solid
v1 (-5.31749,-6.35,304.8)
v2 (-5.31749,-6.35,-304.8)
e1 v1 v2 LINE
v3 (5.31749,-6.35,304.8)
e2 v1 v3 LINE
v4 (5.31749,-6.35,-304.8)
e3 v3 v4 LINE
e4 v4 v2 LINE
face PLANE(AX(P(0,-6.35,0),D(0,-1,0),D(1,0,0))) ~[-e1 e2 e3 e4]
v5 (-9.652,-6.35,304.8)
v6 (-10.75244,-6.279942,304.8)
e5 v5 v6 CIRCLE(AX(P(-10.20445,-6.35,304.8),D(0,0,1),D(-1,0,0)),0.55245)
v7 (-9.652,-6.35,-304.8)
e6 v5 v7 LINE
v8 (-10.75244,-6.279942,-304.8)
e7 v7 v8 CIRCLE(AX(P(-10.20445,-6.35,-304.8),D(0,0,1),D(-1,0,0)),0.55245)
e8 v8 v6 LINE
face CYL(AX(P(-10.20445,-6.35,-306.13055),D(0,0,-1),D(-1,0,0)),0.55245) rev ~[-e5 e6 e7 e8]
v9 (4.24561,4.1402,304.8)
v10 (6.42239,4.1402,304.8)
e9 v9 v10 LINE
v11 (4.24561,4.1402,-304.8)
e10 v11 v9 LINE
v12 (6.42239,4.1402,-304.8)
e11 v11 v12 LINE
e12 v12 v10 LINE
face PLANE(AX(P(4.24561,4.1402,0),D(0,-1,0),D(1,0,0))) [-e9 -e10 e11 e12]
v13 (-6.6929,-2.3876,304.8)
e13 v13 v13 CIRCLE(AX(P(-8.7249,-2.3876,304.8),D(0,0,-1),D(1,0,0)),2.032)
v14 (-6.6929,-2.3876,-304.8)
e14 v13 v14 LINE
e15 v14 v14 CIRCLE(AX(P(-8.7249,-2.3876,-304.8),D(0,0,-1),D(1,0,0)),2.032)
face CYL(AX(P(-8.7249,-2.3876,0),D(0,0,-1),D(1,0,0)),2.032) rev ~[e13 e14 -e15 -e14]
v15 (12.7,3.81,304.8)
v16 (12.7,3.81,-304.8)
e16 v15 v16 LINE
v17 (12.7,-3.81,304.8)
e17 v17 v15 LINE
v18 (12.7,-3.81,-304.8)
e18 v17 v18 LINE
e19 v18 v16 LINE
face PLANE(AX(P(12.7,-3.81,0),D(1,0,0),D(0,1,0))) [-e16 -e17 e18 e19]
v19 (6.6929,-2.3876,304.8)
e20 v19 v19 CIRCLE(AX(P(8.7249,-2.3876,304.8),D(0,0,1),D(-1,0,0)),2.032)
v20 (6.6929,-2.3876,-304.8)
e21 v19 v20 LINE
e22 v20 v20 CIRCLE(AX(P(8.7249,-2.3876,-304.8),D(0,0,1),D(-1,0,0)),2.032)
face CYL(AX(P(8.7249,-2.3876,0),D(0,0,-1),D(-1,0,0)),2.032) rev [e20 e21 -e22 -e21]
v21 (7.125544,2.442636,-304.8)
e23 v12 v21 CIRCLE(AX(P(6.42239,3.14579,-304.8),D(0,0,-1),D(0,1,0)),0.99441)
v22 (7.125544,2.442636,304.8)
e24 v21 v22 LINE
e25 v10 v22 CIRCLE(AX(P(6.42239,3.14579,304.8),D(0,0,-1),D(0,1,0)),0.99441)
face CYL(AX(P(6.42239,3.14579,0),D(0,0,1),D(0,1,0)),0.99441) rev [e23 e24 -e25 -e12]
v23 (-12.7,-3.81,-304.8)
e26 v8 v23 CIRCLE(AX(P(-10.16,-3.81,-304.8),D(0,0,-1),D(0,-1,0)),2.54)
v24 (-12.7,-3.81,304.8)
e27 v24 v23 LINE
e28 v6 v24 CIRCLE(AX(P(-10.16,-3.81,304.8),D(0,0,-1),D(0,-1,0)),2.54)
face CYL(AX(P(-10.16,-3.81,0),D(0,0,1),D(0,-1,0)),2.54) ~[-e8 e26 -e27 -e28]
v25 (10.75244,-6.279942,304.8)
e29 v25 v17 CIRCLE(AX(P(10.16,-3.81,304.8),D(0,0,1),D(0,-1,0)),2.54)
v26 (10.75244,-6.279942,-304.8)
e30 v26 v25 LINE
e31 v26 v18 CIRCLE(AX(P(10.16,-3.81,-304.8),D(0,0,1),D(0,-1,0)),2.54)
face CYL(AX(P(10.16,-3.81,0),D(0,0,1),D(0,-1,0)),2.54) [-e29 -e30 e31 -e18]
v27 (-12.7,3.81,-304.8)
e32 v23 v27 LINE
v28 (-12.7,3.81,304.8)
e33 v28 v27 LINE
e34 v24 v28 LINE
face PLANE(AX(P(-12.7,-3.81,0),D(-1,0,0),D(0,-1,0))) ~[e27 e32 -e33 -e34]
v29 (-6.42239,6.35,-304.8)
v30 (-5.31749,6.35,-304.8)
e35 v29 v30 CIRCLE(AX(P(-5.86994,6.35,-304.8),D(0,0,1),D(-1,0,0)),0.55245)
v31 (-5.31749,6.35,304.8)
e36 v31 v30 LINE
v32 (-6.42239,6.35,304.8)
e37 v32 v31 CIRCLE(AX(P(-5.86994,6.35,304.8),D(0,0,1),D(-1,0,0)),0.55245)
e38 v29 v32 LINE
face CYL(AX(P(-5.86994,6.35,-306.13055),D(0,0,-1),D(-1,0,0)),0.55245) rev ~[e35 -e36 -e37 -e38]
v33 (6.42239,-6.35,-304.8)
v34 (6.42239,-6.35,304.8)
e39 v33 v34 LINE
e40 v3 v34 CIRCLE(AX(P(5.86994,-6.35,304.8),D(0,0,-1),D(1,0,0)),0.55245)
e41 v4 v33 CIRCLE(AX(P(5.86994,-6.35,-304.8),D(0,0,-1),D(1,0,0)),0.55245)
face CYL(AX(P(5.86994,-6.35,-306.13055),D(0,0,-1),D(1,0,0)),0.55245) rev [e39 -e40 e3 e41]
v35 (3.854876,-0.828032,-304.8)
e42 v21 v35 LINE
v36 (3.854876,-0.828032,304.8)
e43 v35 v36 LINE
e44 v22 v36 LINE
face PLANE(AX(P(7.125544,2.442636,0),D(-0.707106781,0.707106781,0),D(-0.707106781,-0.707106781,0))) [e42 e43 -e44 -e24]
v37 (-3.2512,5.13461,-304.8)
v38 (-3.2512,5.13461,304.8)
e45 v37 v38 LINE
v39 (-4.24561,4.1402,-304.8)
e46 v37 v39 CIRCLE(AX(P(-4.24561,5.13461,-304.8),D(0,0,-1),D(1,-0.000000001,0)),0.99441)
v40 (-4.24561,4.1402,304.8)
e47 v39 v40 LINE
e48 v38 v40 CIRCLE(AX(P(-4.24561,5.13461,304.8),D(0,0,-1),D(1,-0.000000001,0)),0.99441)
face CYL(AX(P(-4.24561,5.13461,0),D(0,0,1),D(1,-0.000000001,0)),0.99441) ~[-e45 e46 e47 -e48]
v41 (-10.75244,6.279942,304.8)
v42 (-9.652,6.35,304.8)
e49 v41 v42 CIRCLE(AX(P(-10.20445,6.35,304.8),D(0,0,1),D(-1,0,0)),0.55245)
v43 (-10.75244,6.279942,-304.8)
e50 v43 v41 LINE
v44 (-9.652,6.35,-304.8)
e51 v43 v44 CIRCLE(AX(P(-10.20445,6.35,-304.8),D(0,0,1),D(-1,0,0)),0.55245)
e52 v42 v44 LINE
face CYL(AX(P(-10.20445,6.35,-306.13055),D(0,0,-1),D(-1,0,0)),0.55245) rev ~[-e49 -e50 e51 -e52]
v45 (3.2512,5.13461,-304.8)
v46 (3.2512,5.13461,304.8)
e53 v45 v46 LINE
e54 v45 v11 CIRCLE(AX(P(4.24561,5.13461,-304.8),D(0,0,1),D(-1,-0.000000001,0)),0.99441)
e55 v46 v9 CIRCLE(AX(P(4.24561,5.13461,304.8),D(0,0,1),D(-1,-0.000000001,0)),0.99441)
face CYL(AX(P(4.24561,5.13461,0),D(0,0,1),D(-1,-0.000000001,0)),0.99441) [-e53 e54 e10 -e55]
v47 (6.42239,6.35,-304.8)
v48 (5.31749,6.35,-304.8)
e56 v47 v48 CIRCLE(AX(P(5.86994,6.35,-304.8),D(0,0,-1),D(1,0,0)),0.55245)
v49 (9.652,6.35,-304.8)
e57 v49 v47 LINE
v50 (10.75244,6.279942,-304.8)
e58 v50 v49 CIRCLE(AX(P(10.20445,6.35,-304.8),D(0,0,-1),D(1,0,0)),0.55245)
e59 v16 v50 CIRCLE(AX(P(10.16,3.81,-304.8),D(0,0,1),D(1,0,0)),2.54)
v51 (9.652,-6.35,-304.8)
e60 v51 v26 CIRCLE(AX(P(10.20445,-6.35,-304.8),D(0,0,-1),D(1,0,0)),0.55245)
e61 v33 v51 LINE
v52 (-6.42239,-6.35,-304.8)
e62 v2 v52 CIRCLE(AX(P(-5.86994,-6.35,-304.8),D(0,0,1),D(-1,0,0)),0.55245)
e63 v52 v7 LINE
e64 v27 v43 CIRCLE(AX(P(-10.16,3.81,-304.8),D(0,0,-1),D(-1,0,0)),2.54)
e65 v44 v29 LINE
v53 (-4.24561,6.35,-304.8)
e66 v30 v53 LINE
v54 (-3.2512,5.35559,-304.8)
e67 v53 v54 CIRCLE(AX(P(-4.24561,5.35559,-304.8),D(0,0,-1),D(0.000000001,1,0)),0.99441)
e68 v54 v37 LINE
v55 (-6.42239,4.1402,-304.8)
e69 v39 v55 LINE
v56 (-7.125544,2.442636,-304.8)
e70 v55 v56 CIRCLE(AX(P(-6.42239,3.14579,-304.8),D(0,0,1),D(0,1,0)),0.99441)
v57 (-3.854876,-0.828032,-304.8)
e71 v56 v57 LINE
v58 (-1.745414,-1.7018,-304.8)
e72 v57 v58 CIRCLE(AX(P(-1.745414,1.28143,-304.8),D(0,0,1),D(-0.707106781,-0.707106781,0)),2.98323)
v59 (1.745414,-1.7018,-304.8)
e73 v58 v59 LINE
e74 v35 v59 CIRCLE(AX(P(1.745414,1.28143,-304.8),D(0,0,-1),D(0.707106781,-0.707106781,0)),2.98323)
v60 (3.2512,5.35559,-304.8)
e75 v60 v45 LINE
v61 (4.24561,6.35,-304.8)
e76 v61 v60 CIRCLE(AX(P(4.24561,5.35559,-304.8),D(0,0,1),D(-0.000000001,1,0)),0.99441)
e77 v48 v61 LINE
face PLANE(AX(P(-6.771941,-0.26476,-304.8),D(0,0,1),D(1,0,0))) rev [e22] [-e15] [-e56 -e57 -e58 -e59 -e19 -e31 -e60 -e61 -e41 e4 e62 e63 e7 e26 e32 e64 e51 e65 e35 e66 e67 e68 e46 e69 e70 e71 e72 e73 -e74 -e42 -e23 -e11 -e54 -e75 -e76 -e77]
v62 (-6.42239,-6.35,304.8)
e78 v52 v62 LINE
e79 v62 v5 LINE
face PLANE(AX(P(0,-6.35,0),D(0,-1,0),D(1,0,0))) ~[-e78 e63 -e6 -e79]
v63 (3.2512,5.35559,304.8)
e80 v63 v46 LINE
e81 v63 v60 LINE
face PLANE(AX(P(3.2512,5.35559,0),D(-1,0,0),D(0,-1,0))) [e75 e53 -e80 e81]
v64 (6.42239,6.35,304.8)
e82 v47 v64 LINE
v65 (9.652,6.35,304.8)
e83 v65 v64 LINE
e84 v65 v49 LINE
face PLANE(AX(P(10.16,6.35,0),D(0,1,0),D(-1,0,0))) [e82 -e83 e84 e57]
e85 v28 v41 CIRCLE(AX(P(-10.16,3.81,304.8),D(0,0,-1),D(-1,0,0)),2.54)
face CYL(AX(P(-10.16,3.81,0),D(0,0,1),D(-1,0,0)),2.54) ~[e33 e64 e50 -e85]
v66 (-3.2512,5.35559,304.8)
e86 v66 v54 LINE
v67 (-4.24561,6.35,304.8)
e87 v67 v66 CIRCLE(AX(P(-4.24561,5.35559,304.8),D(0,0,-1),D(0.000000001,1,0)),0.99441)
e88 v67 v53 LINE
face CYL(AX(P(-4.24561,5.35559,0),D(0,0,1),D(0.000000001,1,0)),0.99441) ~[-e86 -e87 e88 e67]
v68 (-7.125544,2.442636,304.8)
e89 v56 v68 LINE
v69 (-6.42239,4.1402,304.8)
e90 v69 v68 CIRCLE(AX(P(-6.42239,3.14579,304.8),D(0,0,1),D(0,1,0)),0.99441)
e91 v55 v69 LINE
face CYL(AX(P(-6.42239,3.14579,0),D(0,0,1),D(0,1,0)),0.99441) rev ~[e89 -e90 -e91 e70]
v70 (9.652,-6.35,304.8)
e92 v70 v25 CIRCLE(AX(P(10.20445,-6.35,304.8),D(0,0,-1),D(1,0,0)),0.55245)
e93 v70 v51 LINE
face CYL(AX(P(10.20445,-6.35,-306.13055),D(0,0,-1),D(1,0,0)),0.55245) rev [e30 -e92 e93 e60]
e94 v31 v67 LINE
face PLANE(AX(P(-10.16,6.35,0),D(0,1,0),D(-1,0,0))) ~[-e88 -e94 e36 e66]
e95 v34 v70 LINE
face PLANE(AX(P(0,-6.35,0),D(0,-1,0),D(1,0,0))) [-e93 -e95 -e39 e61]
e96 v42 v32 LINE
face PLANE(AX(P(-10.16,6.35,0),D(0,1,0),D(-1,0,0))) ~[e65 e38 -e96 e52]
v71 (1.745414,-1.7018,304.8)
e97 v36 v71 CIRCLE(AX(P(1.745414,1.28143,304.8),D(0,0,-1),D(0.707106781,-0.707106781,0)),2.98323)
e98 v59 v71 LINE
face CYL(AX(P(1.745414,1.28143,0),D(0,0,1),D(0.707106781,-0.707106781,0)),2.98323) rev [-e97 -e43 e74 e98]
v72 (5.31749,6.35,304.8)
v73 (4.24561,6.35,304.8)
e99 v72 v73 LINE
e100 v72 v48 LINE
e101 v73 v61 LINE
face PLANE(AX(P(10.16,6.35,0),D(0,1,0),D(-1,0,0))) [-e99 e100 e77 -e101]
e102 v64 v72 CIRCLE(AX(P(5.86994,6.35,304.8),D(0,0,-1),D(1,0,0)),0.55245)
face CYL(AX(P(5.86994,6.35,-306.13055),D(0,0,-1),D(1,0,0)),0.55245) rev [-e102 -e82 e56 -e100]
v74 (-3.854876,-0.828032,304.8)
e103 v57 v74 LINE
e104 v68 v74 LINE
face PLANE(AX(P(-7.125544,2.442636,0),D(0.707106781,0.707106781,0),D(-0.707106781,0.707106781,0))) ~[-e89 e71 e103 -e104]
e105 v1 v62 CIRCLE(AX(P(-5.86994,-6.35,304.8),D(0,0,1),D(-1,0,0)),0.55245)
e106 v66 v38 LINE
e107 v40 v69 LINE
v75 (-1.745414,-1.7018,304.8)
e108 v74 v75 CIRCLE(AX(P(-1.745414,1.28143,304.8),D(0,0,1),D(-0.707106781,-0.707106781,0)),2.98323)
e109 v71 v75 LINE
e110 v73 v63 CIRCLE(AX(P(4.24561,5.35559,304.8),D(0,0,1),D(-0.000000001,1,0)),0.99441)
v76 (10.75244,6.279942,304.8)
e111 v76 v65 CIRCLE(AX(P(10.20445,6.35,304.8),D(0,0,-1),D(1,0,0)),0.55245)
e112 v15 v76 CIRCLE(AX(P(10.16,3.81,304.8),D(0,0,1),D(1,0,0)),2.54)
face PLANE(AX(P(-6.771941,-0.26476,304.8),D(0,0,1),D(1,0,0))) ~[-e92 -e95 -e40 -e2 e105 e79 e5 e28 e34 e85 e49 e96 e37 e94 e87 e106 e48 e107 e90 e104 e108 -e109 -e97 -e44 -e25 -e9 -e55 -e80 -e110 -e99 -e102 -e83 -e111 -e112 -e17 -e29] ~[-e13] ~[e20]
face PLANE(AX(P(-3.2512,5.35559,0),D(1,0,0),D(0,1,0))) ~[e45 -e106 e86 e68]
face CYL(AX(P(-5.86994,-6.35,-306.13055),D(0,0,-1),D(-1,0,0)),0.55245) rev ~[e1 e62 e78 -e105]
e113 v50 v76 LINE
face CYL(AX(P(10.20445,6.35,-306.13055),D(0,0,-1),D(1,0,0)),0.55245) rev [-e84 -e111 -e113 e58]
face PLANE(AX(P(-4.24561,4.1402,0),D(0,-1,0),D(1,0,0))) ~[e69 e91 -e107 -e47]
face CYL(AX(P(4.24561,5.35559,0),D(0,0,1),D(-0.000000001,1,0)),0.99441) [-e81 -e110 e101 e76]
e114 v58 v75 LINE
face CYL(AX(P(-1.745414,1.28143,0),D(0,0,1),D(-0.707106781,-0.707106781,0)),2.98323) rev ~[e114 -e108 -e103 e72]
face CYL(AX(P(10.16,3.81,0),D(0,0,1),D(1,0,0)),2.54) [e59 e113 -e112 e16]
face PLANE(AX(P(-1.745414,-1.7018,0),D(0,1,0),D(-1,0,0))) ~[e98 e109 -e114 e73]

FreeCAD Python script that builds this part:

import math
import FreeCAD as App
import Part
import Sketcher
from FreeCAD import Vector
Q = App.Units.Quantity

doc = App.newDocument("Part")
body = doc.addObject("PartDesign::Body", "Body")

sketch1 = doc.addObject("Sketcher::SketchObject", "Sketch")
body.addObject(sketch1)
sketch1.AttachmentSupport = (doc.XY_Plane, [""])
sketch1.MapMode = "FlatFace"
sketch1.addGeometry(Part.LineSegment(Vector(3.25, 5.36, 0), Vector(3.25, 5.13, 0)), False)
sketch1.addGeometry(Part.ArcOfCircle(Part.Circle(Vector(4.25, 5.13, 0), Vector(0, 0, 1), 0.99), math.radians(-180), math.radians(-90)), False)
sketch1.addGeometry(Part.LineSegment(Vector(4.25, 4.14, 0), Vector(6.42, 4.14, 0)), False)
sketch1.addGeometry(Part.ArcOfCircle(Part.Circle(Vector(6.42, 3.15, 0), Vector(0, 0, 1), 0.99), math.radians(-45), math.radians(90)), False)
sketch1.addGeometry(Part.LineSegment(Vector(7.13, 2.44, 0), Vector(3.85, -0.83, 0)), False)
sketch1.addGeometry(Part.ArcOfCircle(Part.Circle(Vector(1.75, 1.28, 0), Vector(0, 0, 1), 2.98), math.radians(-90), math.radians(-45)), False)
sketch1.addGeometry(Part.LineSegment(Vector(1.75, -1.7, 0), Vector(0, -1.7, 0)), False)
sketch1.addGeometry(Part.LineSegment(Vector(0, -1.7, 0), Vector(0, -6.35, 0)), False)
sketch1.addGeometry(Part.LineSegment(Vector(0, -6.35, 0), Vector(10.16, -6.35, 0)), False)
sketch1.addGeometry(Part.ArcOfCircle(Part.Circle(Vector(10.16, -3.81, 0), Vector(0, 0, 1), 2.54), math.radians(-90), math.radians(0)), False)
sketch1.addGeometry(Part.LineSegment(Vector(12.7, -3.81, 0), Vector(12.7, 3.81, 0)), False)
sketch1.addGeometry(Part.ArcOfCircle(Part.Circle(Vector(10.16, 3.81, 0), Vector(0, 0, 1), 2.54), math.radians(0), math.radians(90)), False)
sketch1.addGeometry(Part.LineSegment(Vector(10.16, 6.35, 0), Vector(4.25, 6.35, 0)), False)
sketch1.addGeometry(Part.ArcOfCircle(Part.Circle(Vector(4.25, 5.36, 0), Vector(0, 0, 1), 0.99), math.radians(90), math.radians(180)), False)
sketch1.addGeometry(Part.Circle(Vector(8.72, -2.39, 0), Vector(0, 0, 1), 2.03), False)
sketch1.addConstraint(Sketcher.Constraint("Tangent", 0, 2, 1, 1))
sketch1.addConstraint(Sketcher.Constraint("Tangent", 1, 2, 2, 1))
sketch1.addConstraint(Sketcher.Constraint("Tangent", 2, 2, 3, 2))
sketch1.addConstraint(Sketcher.Constraint("Tangent", 3, 1, 4, 1))
sketch1.addConstraint(Sketcher.Constraint("Tangent", 4, 2, 5, 2))
sketch1.addConstraint(Sketcher.Constraint("Tangent", 5, 1, 6, 1))
sketch1.addConstraint(Sketcher.Constraint("Coincident", 6, 2, 7, 1))
sketch1.addConstraint(Sketcher.Constraint("Coincident", 7, 2, 8, 1))
sketch1.addConstraint(Sketcher.Constraint("Tangent", 8, 2, 9, 1))
sketch1.addConstraint(Sketcher.Constraint("Tangent", 9, 2, 10, 1))
sketch1.addConstraint(Sketcher.Constraint("Tangent", 10, 2, 11, 1))
sketch1.addConstraint(Sketcher.Constraint("Tangent", 11, 2, 12, 1))
sketch1.addConstraint(Sketcher.Constraint("Tangent", 12, 2, 13, 1))
sketch1.addConstraint(Sketcher.Constraint("Tangent", 13, 2, 0, 1))
sketch1.addConstraint(Sketcher.Constraint("Vertical", 0))
sketch1.addConstraint(Sketcher.Constraint("Horizontal", 2))
sketch1.addConstraint(Sketcher.Constraint("Horizontal", 6))
sketch1.addConstraint(Sketcher.Constraint("Vertical", 7))
sketch1.addConstraint(Sketcher.Constraint("Horizontal", 8))
sketch1.addConstraint(Sketcher.Constraint("Vertical", 10))
sketch1.addConstraint(Sketcher.Constraint("Horizontal", 12))
sketch1.addConstraint(Sketcher.Constraint("Equal", 1, 3))
sketch1.addConstraint(Sketcher.Constraint("Equal", 9, 11))
sketch1.addConstraint(Sketcher.Constraint("Equal", 3, 13))
sketch1.addConstraint(Sketcher.Constraint("PointOnObject", 6, 2, -2))
sketch1.addConstraint(Sketcher.Constraint("Radius", 9, Q("0.1 in")))
sketch1.addConstraint(Sketcher.Constraint("Diameter", 14, Q("0.16 in")))
sketch1.addConstraint(Sketcher.Constraint("DistanceX", 8, 1, 8, 2, Q("0.4 in")))
sketch1.addConstraint(Sketcher.Constraint("DistanceY", 10, 1, 10, 2, Q("0.3 in")))
sketch1.addConstraint(Sketcher.Constraint("Angle", 4, Q("-135 deg")))
sketch1.addConstraint(Sketcher.Constraint("DistanceY", 7, 2, 7, 1, Q("0.183 in")))
sketch1.addConstraint(Sketcher.Constraint("DistanceY", 9, 3, -1, 1, Q("0.15 in")))
sketch1.addConstraint(Sketcher.Constraint("DistanceY", 5, 1, 1, 2, Q("0.23 in")))
sketch1.addConstraint(Sketcher.Constraint("DistanceX", 2, 1, 2, 2, Q("0.0857 in")))
sketch1.addConstraint(Sketcher.Constraint("DistanceY", 0, 2, 0, 1, Q("0.0087 in")))
sketch1.addConstraint(Sketcher.Constraint("DistanceY", 14, 3, -1, 1, Q("0.094 in")))
sketch1.addConstraint(Sketcher.Constraint("DistanceX", -1, 1, 0, 2, Q("0.128 in")))
sketch1.addConstraint(Sketcher.Constraint("Radius", 5, Q("2.98323 mm")))
sketch1.addConstraint(Sketcher.Constraint("DistanceX", -1, 1, 14, 3, Q("0.3435 in")))
pad1 = doc.addObject("PartDesign::Pad", "Pad")
body.addObject(pad1)
pad1.Profile = sketch1
pad1.Length = Q("24 in")
pad1.Midplane = True

sketch2 = doc.addObject("Sketcher::SketchObject", "Sketch001")
body.addObject(sketch2)
sketch2.AttachmentSupport = (doc.XY_Plane, [""])
sketch2.MapMode = "FlatFace"
sketch2.addGeometry(Part.Circle(Vector(5.9, 6.3, 0), Vector(0, 0, 1), 0.6), False)
sketch2.addGeometry(Part.Circle(Vector(10.2, 6.3, 0), Vector(0, 0, 1), 0.6), False)
sketch2.addGeometry(Part.Circle(Vector(5.9, -6.3, 0), Vector(0, 0, 1), 0.6), False)
sketch2.addGeometry(Part.Circle(Vector(10.2, -6.3, 0), Vector(0, 0, 1), 0.6), False)
sketch2.addConstraint(Sketcher.Constraint("Equal", 0, 1))
sketch2.addConstraint(Sketcher.Constraint("Equal", 1, 2))
sketch2.addConstraint(Sketcher.Constraint("Equal", 2, 3))
sketch2.addConstraint(Sketcher.Constraint("Symmetric", 0, 3, 2, 3, -1))
sketch2.addConstraint(Sketcher.Constraint("Symmetric", 1, 3, 3, 3, -1))
sketch2.addConstraint(Sketcher.Constraint("Horizontal", 0, 3, 1, 3))
sketch2.addConstraint(Sketcher.Constraint("Diameter", 0, Q("0.0435 in")))
sketch2.addConstraint(Sketcher.Constraint("DistanceY", 2, 3, 0, 3, Q("0.5 in")))
sketch2.addConstraint(Sketcher.Constraint("DistanceX", -1, 1, 0, 3, Q("0.2311 in")))
sketch2.addConstraint(Sketcher.Constraint("DistanceX", -1, 1, 1, 3, Q("10.20445 mm")))
pocket1 = doc.addObject("PartDesign::Pocket", "Pocket")
body.addObject(pocket1)
pocket1.Profile = sketch2
pocket1.Type = "ThroughAll"
pocket1.Midplane = True
body2 = doc.addObject("PartDesign::Body", "Body001")
doc.recompute()

body2.BaseFeature = body
doc.recompute()

mirroring = doc.addObject("Part::Mirroring", "Mirroring")
mirroring.Source = body
mirroring.Base = Vector(0, 0, 0)
mirroring.Normal = Vector(1, 0, 0)
body3 = doc.addObject("PartDesign::Body", "Body002")
body3.BaseFeature = mirroring
boolean = doc.addObject("PartDesign::Boolean", "Boolean")
body2.addObject(boolean)
boolean.Type = "Fuse"
boolean.addObjects([body3])
doc.recompute()
mirroring.Visibility = False

doc.recompute()
